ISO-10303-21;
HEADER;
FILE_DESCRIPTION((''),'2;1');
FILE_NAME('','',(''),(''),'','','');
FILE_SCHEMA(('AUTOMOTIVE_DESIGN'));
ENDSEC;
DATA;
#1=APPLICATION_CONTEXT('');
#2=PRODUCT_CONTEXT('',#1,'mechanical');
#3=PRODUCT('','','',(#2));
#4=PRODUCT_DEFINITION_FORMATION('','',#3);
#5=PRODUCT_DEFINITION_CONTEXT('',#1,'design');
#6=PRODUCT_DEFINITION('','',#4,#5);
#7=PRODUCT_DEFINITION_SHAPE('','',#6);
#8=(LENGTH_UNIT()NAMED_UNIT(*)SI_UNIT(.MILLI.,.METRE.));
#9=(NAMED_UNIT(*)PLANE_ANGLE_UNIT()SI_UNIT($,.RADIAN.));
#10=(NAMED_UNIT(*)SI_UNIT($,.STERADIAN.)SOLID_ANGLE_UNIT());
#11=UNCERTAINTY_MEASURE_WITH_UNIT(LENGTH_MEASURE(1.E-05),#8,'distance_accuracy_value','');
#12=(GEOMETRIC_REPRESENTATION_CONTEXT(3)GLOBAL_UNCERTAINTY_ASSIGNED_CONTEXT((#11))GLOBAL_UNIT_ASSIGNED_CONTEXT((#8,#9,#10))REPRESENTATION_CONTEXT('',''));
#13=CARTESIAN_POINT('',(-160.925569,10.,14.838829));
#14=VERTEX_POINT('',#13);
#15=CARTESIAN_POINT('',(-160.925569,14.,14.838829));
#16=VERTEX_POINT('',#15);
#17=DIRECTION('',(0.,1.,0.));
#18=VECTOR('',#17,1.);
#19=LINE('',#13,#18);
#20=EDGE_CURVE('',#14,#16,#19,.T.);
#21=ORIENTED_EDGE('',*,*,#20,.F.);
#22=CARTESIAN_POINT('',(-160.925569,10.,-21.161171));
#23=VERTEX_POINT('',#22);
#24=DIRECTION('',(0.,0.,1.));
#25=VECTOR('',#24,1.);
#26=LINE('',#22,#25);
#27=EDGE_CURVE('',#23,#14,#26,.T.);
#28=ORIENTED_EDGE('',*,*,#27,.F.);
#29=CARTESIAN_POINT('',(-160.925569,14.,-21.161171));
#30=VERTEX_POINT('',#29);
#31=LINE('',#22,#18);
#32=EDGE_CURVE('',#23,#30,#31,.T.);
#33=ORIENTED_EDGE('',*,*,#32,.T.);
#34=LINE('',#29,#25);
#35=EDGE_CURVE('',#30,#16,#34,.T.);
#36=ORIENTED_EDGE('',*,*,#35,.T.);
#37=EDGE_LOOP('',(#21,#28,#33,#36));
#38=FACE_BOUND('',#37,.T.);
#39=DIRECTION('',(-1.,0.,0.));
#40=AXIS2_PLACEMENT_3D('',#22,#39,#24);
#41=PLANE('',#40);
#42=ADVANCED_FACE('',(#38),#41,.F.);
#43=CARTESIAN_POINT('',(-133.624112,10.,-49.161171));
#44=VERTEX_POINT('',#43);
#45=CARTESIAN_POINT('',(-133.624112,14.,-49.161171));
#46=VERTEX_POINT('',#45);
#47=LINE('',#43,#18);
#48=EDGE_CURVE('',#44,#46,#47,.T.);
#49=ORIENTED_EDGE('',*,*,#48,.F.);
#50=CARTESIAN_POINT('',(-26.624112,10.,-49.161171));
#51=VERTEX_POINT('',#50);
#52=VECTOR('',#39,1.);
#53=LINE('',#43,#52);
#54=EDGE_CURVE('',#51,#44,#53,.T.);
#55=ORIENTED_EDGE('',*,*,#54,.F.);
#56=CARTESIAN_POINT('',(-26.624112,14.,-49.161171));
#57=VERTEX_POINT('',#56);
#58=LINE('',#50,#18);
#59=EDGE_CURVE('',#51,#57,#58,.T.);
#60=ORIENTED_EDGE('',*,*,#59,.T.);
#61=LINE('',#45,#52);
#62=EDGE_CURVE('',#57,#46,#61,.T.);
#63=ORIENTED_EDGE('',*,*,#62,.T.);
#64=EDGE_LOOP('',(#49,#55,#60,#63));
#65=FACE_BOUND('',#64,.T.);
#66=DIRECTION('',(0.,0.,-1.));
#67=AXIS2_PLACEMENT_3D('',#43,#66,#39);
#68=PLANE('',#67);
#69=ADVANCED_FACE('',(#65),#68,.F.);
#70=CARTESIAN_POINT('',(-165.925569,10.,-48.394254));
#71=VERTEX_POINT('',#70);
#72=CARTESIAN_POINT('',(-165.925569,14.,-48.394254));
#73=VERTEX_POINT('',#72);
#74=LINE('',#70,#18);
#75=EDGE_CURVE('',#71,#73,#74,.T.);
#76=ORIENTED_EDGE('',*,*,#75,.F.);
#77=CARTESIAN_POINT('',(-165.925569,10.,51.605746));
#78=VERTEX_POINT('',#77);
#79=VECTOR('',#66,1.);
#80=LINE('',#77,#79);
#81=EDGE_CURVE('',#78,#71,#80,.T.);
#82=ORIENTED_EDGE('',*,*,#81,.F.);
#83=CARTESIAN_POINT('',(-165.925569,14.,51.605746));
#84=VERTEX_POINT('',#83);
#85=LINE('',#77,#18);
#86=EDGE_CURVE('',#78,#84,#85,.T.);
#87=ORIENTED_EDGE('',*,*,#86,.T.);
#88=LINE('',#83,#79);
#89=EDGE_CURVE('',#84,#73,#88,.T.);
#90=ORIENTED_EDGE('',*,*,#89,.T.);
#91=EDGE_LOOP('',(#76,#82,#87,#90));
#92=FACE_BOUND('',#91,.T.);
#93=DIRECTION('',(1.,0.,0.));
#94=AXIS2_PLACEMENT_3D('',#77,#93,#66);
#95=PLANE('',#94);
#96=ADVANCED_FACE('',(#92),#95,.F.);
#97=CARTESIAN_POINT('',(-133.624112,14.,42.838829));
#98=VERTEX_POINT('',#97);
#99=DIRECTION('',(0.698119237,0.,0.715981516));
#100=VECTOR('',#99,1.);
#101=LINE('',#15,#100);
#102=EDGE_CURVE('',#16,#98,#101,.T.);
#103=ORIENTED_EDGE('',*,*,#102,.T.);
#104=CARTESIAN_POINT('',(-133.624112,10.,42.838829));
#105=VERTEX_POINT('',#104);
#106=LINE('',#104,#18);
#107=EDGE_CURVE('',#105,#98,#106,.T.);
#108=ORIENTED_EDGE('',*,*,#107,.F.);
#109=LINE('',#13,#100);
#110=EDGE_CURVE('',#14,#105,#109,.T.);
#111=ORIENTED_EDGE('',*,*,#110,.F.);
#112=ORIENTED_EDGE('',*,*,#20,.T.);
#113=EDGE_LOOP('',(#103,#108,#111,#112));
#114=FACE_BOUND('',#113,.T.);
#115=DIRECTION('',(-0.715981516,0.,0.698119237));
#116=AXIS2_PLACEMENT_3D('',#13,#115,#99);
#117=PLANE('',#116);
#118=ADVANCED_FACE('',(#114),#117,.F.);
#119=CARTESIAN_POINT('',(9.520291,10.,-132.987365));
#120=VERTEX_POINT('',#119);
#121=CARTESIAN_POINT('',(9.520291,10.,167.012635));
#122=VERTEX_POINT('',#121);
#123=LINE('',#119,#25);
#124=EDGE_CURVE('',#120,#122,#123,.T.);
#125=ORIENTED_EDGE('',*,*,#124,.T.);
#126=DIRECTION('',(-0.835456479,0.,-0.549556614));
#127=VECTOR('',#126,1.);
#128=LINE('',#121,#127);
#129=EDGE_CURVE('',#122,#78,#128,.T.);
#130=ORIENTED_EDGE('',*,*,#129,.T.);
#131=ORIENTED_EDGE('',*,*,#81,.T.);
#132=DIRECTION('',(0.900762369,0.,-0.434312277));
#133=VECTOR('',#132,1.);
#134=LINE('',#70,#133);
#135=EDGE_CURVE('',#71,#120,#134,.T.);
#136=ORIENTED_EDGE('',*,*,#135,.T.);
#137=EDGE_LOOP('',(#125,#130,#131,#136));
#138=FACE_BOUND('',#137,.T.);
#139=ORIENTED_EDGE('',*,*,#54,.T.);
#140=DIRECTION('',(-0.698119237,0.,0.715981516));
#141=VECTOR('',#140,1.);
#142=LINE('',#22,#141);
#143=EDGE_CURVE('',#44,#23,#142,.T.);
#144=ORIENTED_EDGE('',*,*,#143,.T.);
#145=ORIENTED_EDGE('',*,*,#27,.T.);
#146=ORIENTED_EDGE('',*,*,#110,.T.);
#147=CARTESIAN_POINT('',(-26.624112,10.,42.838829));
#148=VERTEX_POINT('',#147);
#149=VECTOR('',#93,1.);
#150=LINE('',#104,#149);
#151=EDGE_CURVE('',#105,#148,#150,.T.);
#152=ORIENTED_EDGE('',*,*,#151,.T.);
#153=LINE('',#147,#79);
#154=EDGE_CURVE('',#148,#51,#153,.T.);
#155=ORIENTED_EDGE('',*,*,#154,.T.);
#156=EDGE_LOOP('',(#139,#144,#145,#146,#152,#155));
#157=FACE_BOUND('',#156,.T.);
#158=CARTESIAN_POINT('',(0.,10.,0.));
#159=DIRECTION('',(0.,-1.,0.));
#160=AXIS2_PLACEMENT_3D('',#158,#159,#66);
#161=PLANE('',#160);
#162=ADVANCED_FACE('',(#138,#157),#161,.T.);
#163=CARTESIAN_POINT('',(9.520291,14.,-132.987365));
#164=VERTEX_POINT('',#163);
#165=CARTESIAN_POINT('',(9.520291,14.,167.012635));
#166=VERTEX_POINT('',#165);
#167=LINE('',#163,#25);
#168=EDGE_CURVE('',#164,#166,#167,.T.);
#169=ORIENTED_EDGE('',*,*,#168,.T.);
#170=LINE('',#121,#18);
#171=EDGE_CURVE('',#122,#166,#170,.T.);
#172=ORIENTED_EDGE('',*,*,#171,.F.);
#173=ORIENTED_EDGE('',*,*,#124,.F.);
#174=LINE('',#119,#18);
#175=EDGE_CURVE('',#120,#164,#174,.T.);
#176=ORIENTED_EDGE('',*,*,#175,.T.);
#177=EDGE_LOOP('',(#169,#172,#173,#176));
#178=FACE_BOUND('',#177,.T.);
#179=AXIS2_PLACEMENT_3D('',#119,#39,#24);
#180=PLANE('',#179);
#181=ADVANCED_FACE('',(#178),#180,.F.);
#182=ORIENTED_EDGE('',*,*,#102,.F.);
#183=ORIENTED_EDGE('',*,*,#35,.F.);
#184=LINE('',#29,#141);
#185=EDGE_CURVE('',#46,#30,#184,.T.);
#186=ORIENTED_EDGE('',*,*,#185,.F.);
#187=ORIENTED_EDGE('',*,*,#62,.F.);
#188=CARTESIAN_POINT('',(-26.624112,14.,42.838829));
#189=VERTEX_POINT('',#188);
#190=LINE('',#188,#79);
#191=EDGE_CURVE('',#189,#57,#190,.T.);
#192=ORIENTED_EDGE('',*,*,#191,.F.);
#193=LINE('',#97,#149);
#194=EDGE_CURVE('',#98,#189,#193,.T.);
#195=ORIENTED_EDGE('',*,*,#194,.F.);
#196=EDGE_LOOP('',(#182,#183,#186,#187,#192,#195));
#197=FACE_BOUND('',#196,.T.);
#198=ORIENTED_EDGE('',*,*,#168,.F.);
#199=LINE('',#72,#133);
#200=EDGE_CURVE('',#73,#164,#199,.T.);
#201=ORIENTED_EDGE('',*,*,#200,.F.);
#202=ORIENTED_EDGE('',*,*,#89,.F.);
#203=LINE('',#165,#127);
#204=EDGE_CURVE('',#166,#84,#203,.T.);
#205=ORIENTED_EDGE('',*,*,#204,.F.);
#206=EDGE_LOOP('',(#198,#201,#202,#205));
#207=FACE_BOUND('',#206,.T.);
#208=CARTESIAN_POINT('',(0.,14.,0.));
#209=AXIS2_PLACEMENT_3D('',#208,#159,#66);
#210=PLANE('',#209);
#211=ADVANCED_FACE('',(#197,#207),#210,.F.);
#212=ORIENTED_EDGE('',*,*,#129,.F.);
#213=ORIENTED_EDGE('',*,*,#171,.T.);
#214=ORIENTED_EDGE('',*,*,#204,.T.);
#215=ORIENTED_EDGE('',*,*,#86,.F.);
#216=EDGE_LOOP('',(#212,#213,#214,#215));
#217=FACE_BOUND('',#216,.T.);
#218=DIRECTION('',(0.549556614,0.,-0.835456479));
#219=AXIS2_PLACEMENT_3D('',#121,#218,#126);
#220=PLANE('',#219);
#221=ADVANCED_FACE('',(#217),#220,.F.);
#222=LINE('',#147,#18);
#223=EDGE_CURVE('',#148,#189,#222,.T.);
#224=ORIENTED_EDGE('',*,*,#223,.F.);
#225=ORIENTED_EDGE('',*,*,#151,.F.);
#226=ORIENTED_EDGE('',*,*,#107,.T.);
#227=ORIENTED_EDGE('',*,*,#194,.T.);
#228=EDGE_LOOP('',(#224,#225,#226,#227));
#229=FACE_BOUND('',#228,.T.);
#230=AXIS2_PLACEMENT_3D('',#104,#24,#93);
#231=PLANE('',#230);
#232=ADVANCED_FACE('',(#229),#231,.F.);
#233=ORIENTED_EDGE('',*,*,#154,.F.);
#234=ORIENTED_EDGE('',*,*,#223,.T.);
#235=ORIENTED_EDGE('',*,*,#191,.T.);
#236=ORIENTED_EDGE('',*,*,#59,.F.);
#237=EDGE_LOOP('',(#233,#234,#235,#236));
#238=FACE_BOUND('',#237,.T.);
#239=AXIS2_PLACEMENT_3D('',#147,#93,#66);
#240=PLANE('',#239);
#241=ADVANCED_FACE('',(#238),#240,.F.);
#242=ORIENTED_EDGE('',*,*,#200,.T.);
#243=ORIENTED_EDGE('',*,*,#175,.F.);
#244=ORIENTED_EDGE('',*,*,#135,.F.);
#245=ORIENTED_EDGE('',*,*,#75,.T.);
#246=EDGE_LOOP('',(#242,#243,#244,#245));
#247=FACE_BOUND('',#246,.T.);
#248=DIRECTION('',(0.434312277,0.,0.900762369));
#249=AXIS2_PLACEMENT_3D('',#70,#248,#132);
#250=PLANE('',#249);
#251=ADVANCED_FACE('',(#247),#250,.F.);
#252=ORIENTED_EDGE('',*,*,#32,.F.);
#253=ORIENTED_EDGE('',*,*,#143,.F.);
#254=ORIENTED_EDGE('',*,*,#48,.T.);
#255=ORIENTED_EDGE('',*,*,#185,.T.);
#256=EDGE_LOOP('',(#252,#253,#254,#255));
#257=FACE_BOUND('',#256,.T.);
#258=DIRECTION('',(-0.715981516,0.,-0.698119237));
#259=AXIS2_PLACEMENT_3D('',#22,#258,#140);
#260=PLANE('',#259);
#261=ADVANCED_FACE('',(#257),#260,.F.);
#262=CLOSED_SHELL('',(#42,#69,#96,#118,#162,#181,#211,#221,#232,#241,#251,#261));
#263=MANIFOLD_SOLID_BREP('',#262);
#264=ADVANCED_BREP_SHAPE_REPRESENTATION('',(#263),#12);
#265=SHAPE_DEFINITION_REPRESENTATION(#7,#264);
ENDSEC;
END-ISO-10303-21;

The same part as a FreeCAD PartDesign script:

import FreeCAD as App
import Part
import Sketcher
Q = App.Units.Quantity


def add_polygon(sketch, points):
    """Adds a closed chain of lines whose ends are joined by coincident constraints."""
    first, n = sketch.GeometryCount, len(points)
    for a, b in zip(points, points[1:] + points[:1]):
        sketch.addGeometry(Part.LineSegment(App.Vector(*a, 0), App.Vector(*b, 0)), False)
    for i in range(n):
        sketch.addConstraint(Sketcher.Constraint("Coincident", first + i, 2, first + (i + 1) % n, 1))

doc = App.newDocument("Part")
params = doc.addObject("Spreadsheet::Sheet", "Params")
for row, (alias, value) in enumerate([
    ("sketch1_width", "107 mm"),
    ("sketch1_height", "300 mm"),
    ("sketch1_height2", "100 mm"),
    ("sketch1_height3", "36 mm"),
    ("sketch1_height4", "92 mm"),
    ("pad1_length", "4 mm"),
], start=1):
    params.set(f"A{row}", alias)
    params.set(f"B{row}", "=" + value)
    params.setAlias(f"B{row}", alias)

body = doc.addObject("PartDesign::Body", "Body")

sketch1 = body.newObject("Sketcher::SketchObject", "Sketch")
sketch1.AttachmentSupport = (doc.getObject("XZ_Plane"), [""])
sketch1.MapMode = "FlatFace"
sketch1.AttachmentOffset = App.Placement(App.Vector(0, 0, -10), App.Rotation())
add_polygon(sketch1, [(10, -133), (10, 167), (-166, 52), (-166, -48)])
add_polygon(sketch1, [(-27, -49), (-134, -49), (-161, -21), (-161, 15), (-134, 43), (-27, 43)])
sketch1.addConstraint([
    Sketcher.Constraint("Vertical", 0),
    Sketcher.Constraint("Vertical", 2),
    Sketcher.Constraint("Horizontal", 4),
    Sketcher.Constraint("Vertical", 6),
    Sketcher.Constraint("Horizontal", 8),
    Sketcher.Constraint("Vertical", 9),
    Sketcher.Constraint("Vertical", 4, 2, 7, 2),
    Sketcher.Constraint("Equal", 5, 7),
    Sketcher.Constraint("DistanceX", 4, 2, 4, 1, Q("107 mm")),
    Sketcher.Constraint("DistanceY", 0, 1, 0, 2, Q("300 mm")),
    Sketcher.Constraint("DistanceY", 2, 2, 2, 1, Q("100 mm")),
    Sketcher.Constraint("DistanceY", 6, 1, 6, 2, Q("36 mm")),
    Sketcher.Constraint("DistanceY", 9, 2, 9, 1, Q("92 mm")),
    Sketcher.Constraint("Distance", 1, Q("210 mm")),
    Sketcher.Constraint("DistanceX", 2, 2, 5, 2, Q("5 mm")),
    Sketcher.Constraint("DistanceX", -1, 1, 0, 2, Q("9.520291 mm")),
    Sketcher.Constraint("DistanceX", 1, 2, -1, 1, Q("165.925569 mm")),
    Sketcher.Constraint("DistanceY", 4, 2, -1, 1, Q("49.161171 mm")),
    Sketcher.Constraint("Distance", 5, Q("39.107155 mm")),
    Sketcher.Constraint("DistanceY", -1, 1, 0, 2, Q("167.012635 mm")),
])
sketch1.setExpression("Constraints[18]", "Params.sketch1_width")
sketch1.setExpression("Constraints[19]", "Params.sketch1_height")
sketch1.setExpression("Constraints[20]", "Params.sketch1_height2")
sketch1.setExpression("Constraints[21]", "Params.sketch1_height3")
sketch1.setExpression("Constraints[22]", "Params.sketch1_height4")
pad1 = body.newObject("PartDesign::Pad", "Pad")
pad1.Profile = sketch1
pad1.setExpression("Length", "Params.pad1_length")
pad1.Reversed = True

doc.recompute()
